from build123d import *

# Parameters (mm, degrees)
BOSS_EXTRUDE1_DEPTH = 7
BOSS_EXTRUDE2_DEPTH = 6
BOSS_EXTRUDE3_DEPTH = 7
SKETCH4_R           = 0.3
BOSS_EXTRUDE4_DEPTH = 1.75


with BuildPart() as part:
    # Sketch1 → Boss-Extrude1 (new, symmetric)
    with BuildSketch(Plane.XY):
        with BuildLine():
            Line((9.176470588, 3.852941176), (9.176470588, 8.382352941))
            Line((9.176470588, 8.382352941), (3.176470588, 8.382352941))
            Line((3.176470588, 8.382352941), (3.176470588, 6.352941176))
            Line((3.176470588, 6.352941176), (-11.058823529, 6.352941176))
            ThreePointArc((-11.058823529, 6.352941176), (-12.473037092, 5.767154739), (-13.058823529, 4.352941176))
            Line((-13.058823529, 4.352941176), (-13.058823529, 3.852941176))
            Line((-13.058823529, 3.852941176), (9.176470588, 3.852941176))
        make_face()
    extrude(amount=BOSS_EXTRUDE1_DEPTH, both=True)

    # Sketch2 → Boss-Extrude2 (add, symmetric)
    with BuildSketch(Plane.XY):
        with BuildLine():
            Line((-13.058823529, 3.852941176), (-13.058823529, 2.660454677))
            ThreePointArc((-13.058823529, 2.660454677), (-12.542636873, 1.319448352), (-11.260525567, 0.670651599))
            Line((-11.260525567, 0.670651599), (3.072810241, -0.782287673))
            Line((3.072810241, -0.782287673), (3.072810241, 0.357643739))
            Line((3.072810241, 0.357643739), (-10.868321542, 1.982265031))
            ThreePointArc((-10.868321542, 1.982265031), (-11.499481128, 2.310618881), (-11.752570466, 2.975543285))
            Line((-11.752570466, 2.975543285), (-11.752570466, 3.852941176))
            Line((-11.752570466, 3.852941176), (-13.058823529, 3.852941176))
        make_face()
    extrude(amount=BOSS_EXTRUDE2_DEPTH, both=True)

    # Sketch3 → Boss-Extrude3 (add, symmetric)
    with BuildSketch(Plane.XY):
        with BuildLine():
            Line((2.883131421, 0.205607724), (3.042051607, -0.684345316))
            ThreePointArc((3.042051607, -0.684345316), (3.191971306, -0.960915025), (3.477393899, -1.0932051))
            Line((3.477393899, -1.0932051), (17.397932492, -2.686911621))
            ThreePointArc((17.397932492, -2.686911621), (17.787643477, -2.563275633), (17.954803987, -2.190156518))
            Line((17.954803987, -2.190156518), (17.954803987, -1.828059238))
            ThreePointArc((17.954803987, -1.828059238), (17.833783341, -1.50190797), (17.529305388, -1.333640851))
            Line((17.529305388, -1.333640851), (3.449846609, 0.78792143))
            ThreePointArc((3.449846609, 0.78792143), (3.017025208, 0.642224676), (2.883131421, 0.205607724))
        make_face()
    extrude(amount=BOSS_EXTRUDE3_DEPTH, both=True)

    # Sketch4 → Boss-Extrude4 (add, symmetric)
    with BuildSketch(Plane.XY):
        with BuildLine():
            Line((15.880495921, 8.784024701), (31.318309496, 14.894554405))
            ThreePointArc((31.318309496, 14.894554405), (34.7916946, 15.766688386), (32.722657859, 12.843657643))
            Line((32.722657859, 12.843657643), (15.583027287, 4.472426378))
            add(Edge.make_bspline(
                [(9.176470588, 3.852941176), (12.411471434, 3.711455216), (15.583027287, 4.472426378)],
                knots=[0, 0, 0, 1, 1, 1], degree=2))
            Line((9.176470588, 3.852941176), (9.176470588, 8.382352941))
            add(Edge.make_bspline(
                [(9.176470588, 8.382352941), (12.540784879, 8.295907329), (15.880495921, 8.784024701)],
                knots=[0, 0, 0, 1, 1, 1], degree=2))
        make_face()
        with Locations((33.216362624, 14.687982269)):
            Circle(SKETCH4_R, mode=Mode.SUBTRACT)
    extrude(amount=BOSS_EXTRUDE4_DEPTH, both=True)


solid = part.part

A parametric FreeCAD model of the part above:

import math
import FreeCAD as App
import Part
import Sketcher
Q = App.Units.Quantity

doc = App.newDocument("Part")
body = doc.addObject("PartDesign::Body", "Body")

# Sketch on XY plane
sketch1 = doc.addObject("Sketcher::SketchObject", "Sketch")
body.addObject(sketch1)
sketch1.AttachmentSupport = (doc.XY_Plane, [""])
sketch1.MapMode = "FlatFace"
sketch1.addGeometry([
    Part.LineSegment(App.Vector(9.2, 3.9, 0), App.Vector(9.2, 8.4, 0)),  # 0
    Part.LineSegment(App.Vector(9.2, 8.4, 0), App.Vector(3.2, 8.4, 0)),  # 1
    Part.LineSegment(App.Vector(3.2, 8.4, 0), App.Vector(3.2, 6.4, 0)),  # 2
    Part.LineSegment(App.Vector(3.2, 6.4, 0), App.Vector(-11.1, 6.4, 0)),  # 3
    Part.ArcOfCircle(Part.Circle(App.Vector(-11.1, 4.4, 0), App.Vector(0, 0, 1), 2), math.radians(90), math.radians(180)),  # 4
    Part.LineSegment(App.Vector(-13.1, 4.4, 0), App.Vector(-13.1, 3.9, 0)),  # 5
    Part.LineSegment(App.Vector(-13.1, 3.9, 0), App.Vector(9.2, 3.9, 0)),  # 6
], False)
sketch1.addConstraint([
    Sketcher.Constraint("Coincident", 0, 2, 1, 1),
    Sketcher.Constraint("Coincident", 1, 2, 2, 1),
    Sketcher.Constraint("Coincident", 2, 2, 3, 1),
    Sketcher.Constraint("Tangent", 3, 2, 4, 1),
    Sketcher.Constraint("Tangent", 4, 2, 5, 1),
    Sketcher.Constraint("Coincident", 5, 2, 6, 1),
    Sketcher.Constraint("Coincident", 6, 2, 0, 1),
    Sketcher.Constraint("Vertical", 0),
    Sketcher.Constraint("Horizontal", 1),
    Sketcher.Constraint("Vertical", 2),
    Sketcher.Constraint("Horizontal", 3),
    Sketcher.Constraint("Vertical", 5),
    Sketcher.Constraint("Horizontal", 6),
    Sketcher.Constraint("Radius", 4, Q("2 mm")),
    Sketcher.Constraint("DistanceX", 1, 2, 1, 1, Q("6 mm")),
    Sketcher.Constraint("DistanceY", 5, 2, 5, 1, Q("0.5 mm")),
    Sketcher.Constraint("DistanceY", 0, 1, 0, 2, Q("4.529412 mm")),
    Sketcher.Constraint("DistanceX", 3, 2, 3, 1, Q("14.235294 mm")),
    Sketcher.Constraint("DistanceY", -1, 1, 4, 3, Q("4.352941 mm")),
    Sketcher.Constraint("DistanceX", -1, 1, 0, 2, Q("9.176471 mm")),
])
pad1 = doc.addObject("PartDesign::Pad", "Pad")
body.addObject(pad1)
pad1.Profile = sketch1
pad1.Length = 14
pad1.Midplane = True

# Sketch on XY plane
sketch2 = doc.addObject("Sketcher::SketchObject", "Sketch001")
body.addObject(sketch2)
sketch2.AttachmentSupport = (doc.XY_Plane, [""])
sketch2.MapMode = "FlatFace"
sketch2.addGeometry([
    Part.LineSegment(App.Vector(-13.1, 3.9, 0), App.Vector(-13.1, 2.7, 0)),  # 0
    Part.ArcOfCircle(Part.Circle(App.Vector(-11.1, 2.7, 0), App.Vector(0, 0, 1), 2), math.radians(180), math.radians(264)),  # 1
    Part.LineSegment(App.Vector(-11.3, 0.7, 0), App.Vector(3.1, -0.8, 0)),  # 2
    Part.LineSegment(App.Vector(3.1, -0.8, 0), App.Vector(3.1, 0.4, 0)),  # 3
    Part.LineSegment(App.Vector(3.1, 0.4, 0), App.Vector(-10.9, 2, 0)),  # 4
    Part.ArcOfCircle(Part.Circle(App.Vector(-10.8, 3, 0), App.Vector(0, 0, 1), 1), math.radians(180), math.radians(263)),  # 5
    Part.LineSegment(App.Vector(-11.8, 3, 0), App.Vector(-11.8, 3.9, 0)),  # 6
    Part.LineSegment(App.Vector(-11.8, 3.9, 0), App.Vector(-13.1, 3.9, 0)),  # 7
], False)
sketch2.addConstraint([
    Sketcher.Constraint("Tangent", 0, 2, 1, 1),
    Sketcher.Constraint("Tangent", 1, 2, 2, 1),
    Sketcher.Constraint("Coincident", 2, 2, 3, 1),
    Sketcher.Constraint("Coincident", 3, 2, 4, 1),
    Sketcher.Constraint("Tangent", 4, 2, 5, 2),
    Sketcher.Constraint("Tangent", 5, 1, 6, 1),
    Sketcher.Constraint("Coincident", 6, 2, 7, 1),
    Sketcher.Constraint("Coincident", 7, 2, 0, 1),
    Sketcher.Constraint("Vertical", 0),
    Sketcher.Constraint("Vertical", 3),
    Sketcher.Constraint("Vertical", 6),
    Sketcher.Constraint("Horizontal", 7),
    Sketcher.Constraint("Radius", 1, Q("2 mm")),
    Sketcher.Constraint("Radius", 5, Q("1 mm")),
    Sketcher.Constraint("DistanceY", 3, 1, 3, 2, Q("1.139931 mm")),
    Sketcher.Constraint("DistanceY", 3, 2, 5, 3, Q("2.6179 mm")),
    Sketcher.Constraint("DistanceX", 1, 3, 4, 2, Q("0.190502 mm")),
    Sketcher.Constraint("Distance", 2, Q("14.406788 mm")),
    Sketcher.Constraint("DistanceY", 0, 2, 0, 1, Q("1.192486 mm")),
    Sketcher.Constraint("DistanceY", 6, 1, 6, 2, Q("0.877398 mm")),
    Sketcher.Constraint("DistanceX", 5, 3, -1, 1, Q("10.75257 mm")),
    Sketcher.Constraint("DistanceY", -1, 1, 1, 2, Q("0.670652 mm")),
])
pad2 = doc.addObject("PartDesign::Pad", "Pad001")
body.addObject(pad2)
pad2.Profile = sketch2
pad2.Length = 12
pad2.Midplane = True

# Sketch on XY plane
sketch3 = doc.addObject("Sketcher::SketchObject", "Sketch002")
body.addObject(sketch3)
sketch3.AttachmentSupport = (doc.XY_Plane, [""])
sketch3.MapMode = "FlatFace"
sketch3.addGeometry([
    Part.LineSegment(App.Vector(2.883131, 0.205608, 0), App.Vector(3.042052, -0.684345, 0)),  # 0
    Part.ArcOfCircle(Part.Circle(App.Vector(3.534265, -0.59645, 0), App.Vector(0, 0, 1), 0.5), math.radians(-169.875328), math.radians(-96.531128)),  # 1
    Part.LineSegment(App.Vector(3.477394, -1.093205, 0), App.Vector(17.397932, -2.686912, 0)),  # 2
    Part.ArcOfCircle(Part.Circle(App.Vector(17.454804, -2.190157, 0), App.Vector(0, 0, 1), 0.5), math.radians(-96.531128), math.radians(0)),  # 3
    Part.LineSegment(App.Vector(17.954804, -2.190157, 0), App.Vector(17.954804, -1.828059, 0)),  # 4
    Part.ArcOfCircle(Part.Circle(App.Vector(17.454804, -1.828059, 0), App.Vector(0, 0, 1), 0.5), math.radians(0), math.radians(81.430858)),  # 5
    Part.LineSegment(App.Vector(17.529305, -1.333641, 0), App.Vector(3.449847, 0.787921, 0)),  # 6
    Part.ArcOfCircle(Part.Circle(App.Vector(3.375345, 0.293503, 0), App.Vector(0, 0, 1), 0.5), math.radians(81.430858), math.radians(190.124672)),  # 7
], False)
sketch3.addConstraint([
    Sketcher.Constraint("Coincident", 0, 2, 1, 1),
    Sketcher.Constraint("Coincident", 1, 2, 2, 1),
    Sketcher.Constraint("Coincident", 2, 2, 3, 1),
    Sketcher.Constraint("Coincident", 3, 2, 4, 1),
    Sketcher.Constraint("Coincident", 4, 2, 5, 1),
    Sketcher.Constraint("Coincident", 5, 2, 6, 1),
    Sketcher.Constraint("Coincident", 6, 2, 7, 1),
    Sketcher.Constraint("Coincident", 7, 2, 0, 1),
    Sketcher.Constraint("Vertical", 4),
    Sketcher.Constraint("Radius", 1, Q("0.5 mm")),
    Sketcher.Constraint("Radius", 3, Q("0.5 mm")),
    Sketcher.Constraint("Radius", 5, Q("0.5 mm")),
    Sketcher.Constraint("Radius", 7, Q("0.5 mm")),
    Sketcher.Constraint("DistanceX", 5, 3, 5, 2, Q("0.074501 mm")),
    Sketcher.Constraint("DistanceX", 7, 3, 6, 2, Q("0.074501 mm")),
    Sketcher.Constraint("Distance", 0, Q("0.904031 mm")),
    Sketcher.Constraint("Distance", 2, Q("14.01147 mm")),
    Sketcher.Constraint("DistanceY", 4, 1, 4, 2, Q("0.362097 mm")),
    Sketcher.Constraint("DistanceY", 1, 3, -1, 1, Q("0.59645 mm")),
    Sketcher.Constraint("DistanceY", 5, 3, -1, 1, Q("1.828059 mm")),
    Sketcher.Constraint("DistanceX", -1, 1, 0, 2, Q("3.042052 mm")),
    Sketcher.Constraint("DistanceY", 2, 2, -1, 1, Q("2.686912 mm")),
    Sketcher.Constraint("DistanceY", 4, 2, -1, 1, Q("1.828059 mm")),
    Sketcher.Constraint("DistanceY", -1, 1, 6, 2, Q("0.787921 mm")),
    Sketcher.Constraint("DistanceX", -1, 1, 7, 2, Q("2.883131 mm")),
    Sketcher.Constraint("DistanceX", 1, 3, 3, 3, Q("13.920539 mm")),
    Sketcher.Constraint("DistanceY", 3, 3, 7, 3, Q("2.48366 mm")),
    Sketcher.Constraint("DistanceY", 0, 2, 7, 3, Q("0.977848 mm")),
])
pad3 = doc.addObject("PartDesign::Pad", "Pad002")
body.addObject(pad3)
pad3.Profile = sketch3
pad3.Length = 14
pad3.Midplane = True

# Sketch on XY plane
sketch4 = doc.addObject("Sketcher::SketchObject", "Sketch003")
body.addObject(sketch4)
sketch4.AttachmentSupport = (doc.XY_Plane, [""])
sketch4.MapMode = "FlatFace"
sketch4.addGeometry([
    Part.LineSegment(App.Vector(31.318309, 14.894554, 0), App.Vector(15.880496, 8.784025, 0)),  # 0
    Part.BSplineCurve([App.Vector(9.176471, 8.382353, 0), App.Vector(12.540785, 8.295907, 0), App.Vector(15.880496, 8.784025, 0)], [3, 3], [0, 1], False, 2, [1, 1, 1], False),  # 1
    Part.LineSegment(App.Vector(9.176471, 8.382353, 0), App.Vector(9.176471, 3.852941, 0)),  # 2
    Part.BSplineCurve([App.Vector(9.176471, 3.852941, 0), App.Vector(12.411471, 3.711455, 0), App.Vector(15.583027, 4.472426, 0)], [3, 3], [0, 1], False, 2, [1, 1, 1], False),  # 3
    Part.LineSegment(App.Vector(15.583027, 4.472426, 0), App.Vector(32.722658, 12.843658, 0)),  # 4
    Part.ArcOfCircle(Part.Circle(App.Vector(33.216363, 14.687982, 0), App.Vector(0, 0, 1), 1.909261), math.radians(-104.986071), math.radians(173.788735)),  # 5
    Part.Circle(App.Vector(33.216363, 14.687982, 0), App.Vector(0, 0, 1), 0.3),  # 6
], False)
sketch4.addConstraint([
    Sketcher.Constraint("Block", 1),
    Sketcher.Constraint("Block", 3),
    Sketcher.Constraint("Coincident", 0, 2, 1, 2),
    Sketcher.Constraint("Coincident", 1, 1, 2, 1),
    Sketcher.Constraint("Coincident", 2, 2, 3, 1),
    Sketcher.Constraint("Coincident", 3, 2, 4, 1),
    Sketcher.Constraint("Coincident", 4, 2, 5, 1),
    Sketcher.Constraint("Coincident", 5, 2, 0, 1),
    Sketcher.Constraint("Coincident", 6, 3, 5, 3),
    Sketcher.Constraint("Diameter", 6, Q("0.6 mm")),
    Sketcher.Constraint("Radius", 5, Q("1.909261 mm")),
    Sketcher.Constraint("DistanceX", -1, 1, 5, 2, Q("31.318309 mm")),
    Sketcher.Constraint("DistanceY", 2, 2, 5, 3, Q("10.835041 mm")),
    Sketcher.Constraint("DistanceX", 0, 2, 4, 2, Q("16.842162 mm")),
    Sketcher.Constraint("DistanceY", 0, 2, 5, 2, Q("6.11053 mm")),
])
pad4 = doc.addObject("PartDesign::Pad", "Pad003")
body.addObject(pad4)
pad4.Profile = sketch4
pad4.Length = 3.5
pad4.Midplane = True

doc.recompute()
